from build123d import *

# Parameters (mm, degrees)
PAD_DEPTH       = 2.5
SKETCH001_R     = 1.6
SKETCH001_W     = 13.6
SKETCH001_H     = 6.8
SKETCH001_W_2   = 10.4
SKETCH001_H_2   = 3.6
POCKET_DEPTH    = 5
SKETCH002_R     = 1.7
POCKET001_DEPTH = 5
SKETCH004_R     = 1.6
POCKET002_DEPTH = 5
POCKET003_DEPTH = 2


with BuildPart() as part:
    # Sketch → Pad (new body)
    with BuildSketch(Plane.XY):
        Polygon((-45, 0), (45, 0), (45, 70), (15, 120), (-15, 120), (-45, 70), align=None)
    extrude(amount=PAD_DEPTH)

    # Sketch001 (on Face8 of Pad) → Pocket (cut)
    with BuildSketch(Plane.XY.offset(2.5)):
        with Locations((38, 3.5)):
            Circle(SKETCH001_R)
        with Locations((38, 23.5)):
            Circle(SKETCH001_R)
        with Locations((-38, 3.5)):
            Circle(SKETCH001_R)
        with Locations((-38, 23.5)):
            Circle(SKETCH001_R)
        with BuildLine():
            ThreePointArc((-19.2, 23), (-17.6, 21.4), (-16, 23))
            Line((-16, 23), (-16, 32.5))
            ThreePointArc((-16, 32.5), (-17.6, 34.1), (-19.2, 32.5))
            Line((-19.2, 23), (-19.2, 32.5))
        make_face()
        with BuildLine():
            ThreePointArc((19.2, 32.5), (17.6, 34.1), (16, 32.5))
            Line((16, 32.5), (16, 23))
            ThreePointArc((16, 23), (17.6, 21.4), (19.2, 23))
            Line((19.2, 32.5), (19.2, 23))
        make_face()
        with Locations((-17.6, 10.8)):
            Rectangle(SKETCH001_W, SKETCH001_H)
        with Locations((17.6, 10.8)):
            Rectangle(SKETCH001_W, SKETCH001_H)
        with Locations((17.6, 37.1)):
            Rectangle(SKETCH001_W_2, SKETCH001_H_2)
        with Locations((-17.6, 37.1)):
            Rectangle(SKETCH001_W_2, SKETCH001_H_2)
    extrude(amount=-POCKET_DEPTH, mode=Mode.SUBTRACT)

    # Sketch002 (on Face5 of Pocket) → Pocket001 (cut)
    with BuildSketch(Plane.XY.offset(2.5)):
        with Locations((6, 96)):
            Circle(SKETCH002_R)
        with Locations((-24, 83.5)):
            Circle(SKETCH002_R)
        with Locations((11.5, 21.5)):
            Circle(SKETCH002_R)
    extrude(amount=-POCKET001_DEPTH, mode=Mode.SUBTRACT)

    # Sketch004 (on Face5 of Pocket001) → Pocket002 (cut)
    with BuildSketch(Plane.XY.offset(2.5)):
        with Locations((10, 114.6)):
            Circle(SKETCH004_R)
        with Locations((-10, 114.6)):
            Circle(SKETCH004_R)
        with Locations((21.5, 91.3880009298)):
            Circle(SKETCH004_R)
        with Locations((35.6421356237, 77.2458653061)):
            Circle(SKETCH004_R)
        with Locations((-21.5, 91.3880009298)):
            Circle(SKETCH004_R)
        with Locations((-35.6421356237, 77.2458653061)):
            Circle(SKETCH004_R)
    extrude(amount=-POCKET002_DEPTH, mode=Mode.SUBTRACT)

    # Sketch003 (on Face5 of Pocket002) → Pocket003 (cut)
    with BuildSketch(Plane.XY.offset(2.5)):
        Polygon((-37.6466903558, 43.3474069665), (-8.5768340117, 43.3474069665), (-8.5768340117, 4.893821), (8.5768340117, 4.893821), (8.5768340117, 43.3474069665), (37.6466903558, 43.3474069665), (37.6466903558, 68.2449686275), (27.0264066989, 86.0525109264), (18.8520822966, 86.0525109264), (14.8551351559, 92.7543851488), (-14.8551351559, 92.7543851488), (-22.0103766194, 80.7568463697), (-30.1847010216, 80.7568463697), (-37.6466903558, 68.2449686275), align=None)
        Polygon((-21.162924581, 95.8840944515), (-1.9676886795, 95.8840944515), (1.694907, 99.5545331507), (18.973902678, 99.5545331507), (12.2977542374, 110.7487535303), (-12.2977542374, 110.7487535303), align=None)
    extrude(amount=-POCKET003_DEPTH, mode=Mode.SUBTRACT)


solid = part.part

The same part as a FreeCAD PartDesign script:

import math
import FreeCAD as App
import Part
import Sketcher

V = App.Vector
Q = App.Units.Quantity


def add_polygon(sketch, points):
    """Adds a closed chain of lines whose ends are joined by coincident constraints."""
    first, n = sketch.GeometryCount, len(points)
    for a, b in zip(points, points[1:] + points[:1]):
        sketch.addGeometry(Part.LineSegment(App.Vector(*a, 0), App.Vector(*b, 0)), False)
    for i in range(n):
        sketch.addConstraint(Sketcher.Constraint("Coincident", first + i, 2, first + (i + 1) % n, 1))

doc = App.newDocument("Part")
body = doc.addObject("PartDesign::Body", "Body")

# Sketch on XY plane
sketch1 = body.newObject("Sketcher::SketchObject", "Sketch")
sketch1.AttachmentSupport = (doc.getObject("XY_Plane"), [""])
sketch1.MapMode = "FlatFace"
add_polygon(sketch1, [(-45, 0), (45, 0), (45, 70), (15, 120), (-15, 120), (-45, 70)])  # lines 0-5
sketch1.addConstraint([
    Sketcher.Constraint("Horizontal", 0),
    Sketcher.Constraint("Vertical", 1),
    Sketcher.Constraint("Horizontal", 3),
    Sketcher.Constraint("Vertical", 5),
    Sketcher.Constraint("Symmetric", 0, 2, 5, 2, -1, 1),
    Sketcher.Constraint("Horizontal", 1, 2, 4, 2),
    Sketcher.Constraint("Equal", 2, 4),
    Sketcher.Constraint("DistanceX", 0, 1, 0, 2, Q("90 mm")),
    Sketcher.Constraint("DistanceX", 3, 2, 3, 1, Q("30 mm")),
    Sketcher.Constraint("DistanceY", 1, 1, 1, 2, Q("70 mm")),
    Sketcher.Constraint("DistanceY", -1, 1, 2, 2, Q("120 mm")),
])
pad1 = body.newObject("PartDesign::Pad", "Pad")
pad1.Profile = sketch1
pad1.Length = 2.5

# Sketch on XY plane
sketch2 = body.newObject("Sketcher::SketchObject", "Sketch001")
sketch2.AttachmentSupport = (doc.getObject("XY_Plane"), [""])
sketch2.MapMode = "FlatFace"
sketch2.AttachmentOffset = App.Placement(V(0, 0, 2.5), App.Rotation())
sketch2.addGeometry(Part.Circle(V(38, 3.5, 0), V(0, 0, 1), 1.6), False)  # 0
sketch2.addGeometry(Part.Circle(V(38, 23.5, 0), V(0, 0, 1), 1.6), False)  # 1
sketch2.addGeometry(Part.Circle(V(-38, 3.5, 0), V(0, 0, 1), 1.6), False)  # 2
sketch2.addGeometry(Part.Circle(V(-38, 23.5, 0), V(0, 0, 1), 1.6), False)  # 3
sketch2.addGeometry(Part.ArcOfCircle(Part.Circle(V(-17.6, 23, 0), V(0, 0, 1), 1.6), math.radians(180), math.radians(360)), False)  # 4
sketch2.addGeometry(Part.LineSegment(V(-16, 23, 0), V(-16, 32.5, 0)), False)  # 5
sketch2.addGeometry(Part.ArcOfCircle(Part.Circle(V(-17.6, 32.5, 0), V(0, 0, 1), 1.6), math.radians(0), math.radians(180)), False)  # 6
sketch2.addGeometry(Part.LineSegment(V(-19.2, 32.5, 0), V(-19.2, 23, 0)), False)  # 7
sketch2.addGeometry(Part.ArcOfCircle(Part.Circle(V(17.6, 32.5, 0), V(0, 0, 1), 1.6), math.radians(0), math.radians(180)), False)  # 8
sketch2.addGeometry(Part.LineSegment(V(16, 32.5, 0), V(16, 23, 0)), False)  # 9
sketch2.addGeometry(Part.ArcOfCircle(Part.Circle(V(17.6, 23, 0), V(0, 0, 1), 1.6), math.radians(180), math.radians(360)), False)  # 10
sketch2.addGeometry(Part.LineSegment(V(19.2, 23, 0), V(19.2, 32.5, 0)), False)  # 11
add_polygon(sketch2, [(-24.4, 14.2), (-24.4, 7.4), (-10.8, 7.4), (-10.8, 14.2)])  # lines 12-15
add_polygon(sketch2, [(10.8, 14.2), (10.8, 7.4), (24.4, 7.4), (24.4, 14.2)])  # lines 16-19
add_polygon(sketch2, [(12.4, 38.9), (12.4, 35.3), (22.8, 35.3), (22.8, 38.9)])  # lines 20-23
add_polygon(sketch2, [(-22.8, 38.9), (-22.8, 35.3), (-12.4, 35.3), (-12.4, 38.9)])  # lines 24-27
sketch2.addConstraint([
    Sketcher.Constraint("Tangent", 4, 2, 5, 1),
    Sketcher.Constraint("Tangent", 5, 2, 6, 1),
    Sketcher.Constraint("Tangent", 6, 2, 7, 1),
    Sketcher.Constraint("Tangent", 7, 2, 4, 1),
    Sketcher.Constraint("Tangent", 8, 2, 9, 1),
    Sketcher.Constraint("Tangent", 9, 2, 10, 1),
    Sketcher.Constraint("Tangent", 10, 2, 11, 1),
    Sketcher.Constraint("Tangent", 11, 2, 8, 1),
    Sketcher.Constraint("Vertical", 5),
    Sketcher.Constraint("Vertical", 7),
    Sketcher.Constraint("Vertical", 9),
    Sketcher.Constraint("Vertical", 11),
    Sketcher.Constraint("Vertical", 12),
    Sketcher.Constraint("Horizontal", 13),
    Sketcher.Constraint("Vertical", 14),
    Sketcher.Constraint("Horizontal", 15),
    Sketcher.Constraint("Vertical", 16),
    Sketcher.Constraint("Horizontal", 17),
    Sketcher.Constraint("Vertical", 18),
    Sketcher.Constraint("Horizontal", 19),
    Sketcher.Constraint("Vertical", 20),
    Sketcher.Constraint("Horizontal", 21),
    Sketcher.Constraint("Vertical", 22),
    Sketcher.Constraint("Horizontal", 23),
    Sketcher.Constraint("Vertical", 24),
    Sketcher.Constraint("Horizontal", 25),
    Sketcher.Constraint("Vertical", 26),
    Sketcher.Constraint("Horizontal", 27),
    Sketcher.Constraint("Equal", 0, 1),
    Sketcher.Constraint("Equal", 1, 2),
    Sketcher.Constraint("Equal", 2, 3),
    Sketcher.Constraint("Equal", 3, 4),
    Sketcher.Constraint("Equal", 6, 8),
    Sketcher.Constraint("Symmetric", 0, 3, 2, 3, -2),
    Sketcher.Constraint("Symmetric", 1, 3, 3, 3, -2),
    Sketcher.Constraint("Symmetric", 6, 3, 8, 3, -2),
    Sketcher.Constraint("Symmetric", 13, 2, 16, 2, -2),
    Sketcher.Constraint("Symmetric", 15, 2, 18, 2, -2),
    Sketcher.Constraint("Symmetric", 21, 2, 24, 2, -2),
    Sketcher.Constraint("Symmetric", 23, 2, 26, 2, -2),
    Sketcher.Constraint("Horizontal", 4, 3, 10, 3),
    Sketcher.Constraint("Vertical", 0, 3, 1, 3),
    Sketcher.Constraint("Diameter", 0, Q("3.2 mm")),
    Sketcher.Constraint("DistanceX", 13, 1, 13, 2, Q("13.6 mm")),
    Sketcher.Constraint("DistanceX", 21, 1, 21, 2, Q("10.4 mm")),
    Sketcher.Constraint("DistanceY", 5, 1, 5, 2, Q("9.5 mm")),
    Sketcher.Constraint("DistanceY", 12, 2, 12, 1, Q("6.8 mm")),
    Sketcher.Constraint("DistanceY", 20, 2, 20, 1, Q("3.6 mm")),
    Sketcher.Constraint("DistanceX", -1, 1, 0, 3, Q("38 mm")),
    Sketcher.Constraint("DistanceY", -1, 1, 4, 3, Q("23 mm")),
    Sketcher.Constraint("DistanceX", 4, 2, -1, 1, Q("16 mm")),
    Sketcher.Constraint("DistanceY", 0, 3, 1, 3, Q("20 mm")),
    Sketcher.Constraint("DistanceY", 3, 3, 6, 3, Q("9 mm")),
    Sketcher.Constraint("DistanceX", 12, 2, -1, 1, Q("24.4 mm")),
    Sketcher.Constraint("DistanceY", -1, 1, 12, 2, Q("7.4 mm")),
    Sketcher.Constraint("DistanceX", -1, 1, 20, 2, Q("12.4 mm")),
    Sketcher.Constraint("DistanceY", -1, 1, 20, 2, Q("35.3 mm")),
])
pocket1 = body.newObject("PartDesign::Pocket", "Pocket")
pocket1.Profile = sketch2
pocket1.Length = 5

# Sketch on XY plane
sketch3 = body.newObject("Sketcher::SketchObject", "Sketch002")
sketch3.AttachmentSupport = (doc.getObject("XY_Plane"), [""])
sketch3.MapMode = "FlatFace"
sketch3.AttachmentOffset = App.Placement(V(0, 0, 2.5), App.Rotation())
sketch3.addGeometry([
    Part.Circle(V(6, 96, 0), V(0, 0, 1), 1.7),
    Part.Circle(V(-24, 83.5, 0), V(0, 0, 1), 1.7),
    Part.Circle(V(11.5, 21.5, 0), V(0, 0, 1), 1.7),
], False)
sketch3.addConstraint([
    Sketcher.Constraint("Equal", 0, 1),
    Sketcher.Constraint("Equal", 1, 2),
    Sketcher.Constraint("Diameter", 0, Q("3.4 mm")),
    Sketcher.Constraint("DistanceX", -1, 1, 0, 3, Q("6 mm")),
    Sketcher.Constraint("DistanceY", -1, 1, 0, 3, Q("96 mm")),
    Sketcher.Constraint("DistanceX", 1, 3, -1, 1, Q("24 mm")),
    Sketcher.Constraint("DistanceY", 2, 3, 1, 3, Q("62 mm")),
    Sketcher.Constraint("DistanceY", -1, 1, 1, 3, Q("83.5 mm")),
    Sketcher.Constraint("DistanceX", -1, 1, 2, 3, Q("11.5 mm")),
])
pocket2 = body.newObject("PartDesign::Pocket", "Pocket001")
pocket2.Profile = sketch3
pocket2.Length = 5

# Sketch on XY plane
sketch4 = body.newObject("Sketcher::SketchObject", "Sketch003")
sketch4.AttachmentSupport = (doc.getObject("XY_Plane"), [""])
sketch4.MapMode = "FlatFace"
sketch4.AttachmentOffset = App.Placement(V(0, 0, 2.5), App.Rotation())
sketch4.addGeometry([
    Part.Circle(V(10, 114.6, 0), V(0, 0, 1), 1.6),  # 0
    Part.Circle(V(-10, 114.6, 0), V(0, 0, 1), 1.6),  # 1
    Part.Circle(V(21.5, 91.4, 0), V(0, 0, 1), 1.6),  # 2
    Part.Circle(V(35.6, 77.2, 0), V(0, 0, 1), 1.6),  # 3
    Part.Circle(V(-21.5, 91.4, 0), V(0, 0, 1), 1.6),  # 4
    Part.Circle(V(-35.6, 77.2, 0), V(0, 0, 1), 1.6),  # 5
], False)
sketch4.addConstraint([
    Sketcher.Constraint("Equal", 0, 1),
    Sketcher.Constraint("Equal", 1, 2),
    Sketcher.Constraint("Equal", 2, 3),
    Sketcher.Constraint("Equal", 3, 4),
    Sketcher.Constraint("Equal", 4, 5),
    Sketcher.Constraint("Symmetric", 0, 3, 1, 3, -2),
    Sketcher.Constraint("Symmetric", 2, 3, 4, 3, -2),
    Sketcher.Constraint("Symmetric", 3, 3, 5, 3, -2),
    Sketcher.Constraint("Diameter", 0, Q("3.2 mm")),
    Sketcher.Constraint("DistanceX", -1, 1, 0, 3, Q("10 mm")),
    Sketcher.Constraint("DistanceX", 4, 3, 2, 3, Q("43 mm")),
    Sketcher.Constraint("DistanceY", -1, 1, 0, 3, Q("114.6 mm")),
    Sketcher.Constraint("DistanceY", -1, 1, 2, 3, Q("91.388001 mm")),
    Sketcher.Constraint("DistanceX", 5, 3, 3, 3, Q("71.284271 mm")),
    Sketcher.Constraint("DistanceY", -1, 1, 3, 3, Q("77.245865 mm")),
])
pocket3 = body.newObject("PartDesign::Pocket", "Pocket002")
pocket3.Profile = sketch4
pocket3.Length = 5

# Sketch on XY plane
sketch5 = body.newObject("Sketcher::SketchObject", "Sketch004")
sketch5.AttachmentSupport = (doc.getObject("XY_Plane"), [""])
sketch5.MapMode = "FlatFace"
sketch5.AttachmentOffset = App.Placement(V(0, 0, 2.5), App.Rotation())
add_polygon(sketch5, [(-38, 43), (-9, 43), (-9, 5), (9, 5), (9, 43), (38, 43), (38, 68), (27, 86), (19, 86), (15, 93), (-15, 93), (-22, 81), (-30, 81), (-38, 68)])  # lines 0-13
add_polygon(sketch5, [(-21, 96), (-2, 96), (2, 100), (19, 100), (12, 111), (-12, 111)])  # lines 14-19
sketch5.addConstraint([
    Sketcher.Constraint("Horizontal", 0),
    Sketcher.Constraint("Vertical", 1),
    Sketcher.Constraint("Horizontal", 2),
    Sketcher.Constraint("Vertical", 3),
    Sketcher.Constraint("Horizontal", 4),
    Sketcher.Constraint("Vertical", 5),
    Sketcher.Constraint("Horizontal", 7),
    Sketcher.Constraint("Horizontal", 9),
    Sketcher.Constraint("Horizontal", 11),
    Sketcher.Constraint("Vertical", 13),
    Sketcher.Constraint("Horizontal", 14),
    Sketcher.Constraint("Horizontal", 16),
    Sketcher.Constraint("Horizontal", 18),
    Sketcher.Constraint("Symmetric", 0, 2, 3, 2, -2),
    Sketcher.Constraint("Symmetric", 5, 2, 12, 2, -2),
    Sketcher.Constraint("Parallel", 6, 8),
    Sketcher.Constraint("Parallel", 10, 12),
    Sketcher.Constraint("Parallel", 8, 17),
    Sketcher.Constraint("Parallel", 12, 19),
    Sketcher.Constraint("Equal", 7, 11),
    Sketcher.Constraint("DistanceX", 2, 1, 2, 2, Q("17.153668 mm")),
    Sketcher.Constraint("DistanceX", 9, 2, 9, 1, Q("29.71027 mm")),
    Sketcher.Constraint("DistanceX", 18, 2, 18, 1, Q("24.595508 mm")),
    Sketcher.Constraint("DistanceY", 5, 1, 5, 2, Q("24.897562 mm")),
    Sketcher.Constraint("DistanceX", 11, 2, -1, 1, Q("30.184701 mm")),
    Sketcher.Constraint("DistanceX", 3, 2, 8, 2, Q("6.278301 mm")),
    Sketcher.Constraint("DistanceX", 15, 2, 6, 2, Q("25.3315 mm")),
    Sketcher.Constraint("Distance", 8, Q("7.80325 mm")),
    Sketcher.Constraint("Distance", 12, Q("14.56806 mm")),
    Sketcher.Constraint("Distance", 15, Q("5.185241 mm")),
    Sketcher.Constraint("Distance", 17, Q("13.033861 mm")),
    Sketcher.Constraint("DistanceX", 0, 1, 0, 2, Q("29.069856 mm")),
    Sketcher.Constraint("DistanceX", 7, 2, 7, 1, Q("8.174324 mm")),
    Sketcher.Constraint("DistanceX", 14, 1, 14, 2, Q("19.195236 mm")),
    Sketcher.Constraint("DistanceX", 16, 1, 16, 2, Q("17.278996 mm")),
    Sketcher.Constraint("DistanceY", 1, 2, 1, 1, Q("38.453586 mm")),
    Sketcher.Constraint("DistanceY", -1, 1, 1, 2, Q("4.893821 mm")),
    Sketcher.Constraint("DistanceY", 9, 2, 14, 2, Q("3.129709 mm")),
])
pocket4 = body.newObject("PartDesign::Pocket", "Pocket003")
pocket4.Profile = sketch5
pocket4.Length = 2

doc.recompute()
